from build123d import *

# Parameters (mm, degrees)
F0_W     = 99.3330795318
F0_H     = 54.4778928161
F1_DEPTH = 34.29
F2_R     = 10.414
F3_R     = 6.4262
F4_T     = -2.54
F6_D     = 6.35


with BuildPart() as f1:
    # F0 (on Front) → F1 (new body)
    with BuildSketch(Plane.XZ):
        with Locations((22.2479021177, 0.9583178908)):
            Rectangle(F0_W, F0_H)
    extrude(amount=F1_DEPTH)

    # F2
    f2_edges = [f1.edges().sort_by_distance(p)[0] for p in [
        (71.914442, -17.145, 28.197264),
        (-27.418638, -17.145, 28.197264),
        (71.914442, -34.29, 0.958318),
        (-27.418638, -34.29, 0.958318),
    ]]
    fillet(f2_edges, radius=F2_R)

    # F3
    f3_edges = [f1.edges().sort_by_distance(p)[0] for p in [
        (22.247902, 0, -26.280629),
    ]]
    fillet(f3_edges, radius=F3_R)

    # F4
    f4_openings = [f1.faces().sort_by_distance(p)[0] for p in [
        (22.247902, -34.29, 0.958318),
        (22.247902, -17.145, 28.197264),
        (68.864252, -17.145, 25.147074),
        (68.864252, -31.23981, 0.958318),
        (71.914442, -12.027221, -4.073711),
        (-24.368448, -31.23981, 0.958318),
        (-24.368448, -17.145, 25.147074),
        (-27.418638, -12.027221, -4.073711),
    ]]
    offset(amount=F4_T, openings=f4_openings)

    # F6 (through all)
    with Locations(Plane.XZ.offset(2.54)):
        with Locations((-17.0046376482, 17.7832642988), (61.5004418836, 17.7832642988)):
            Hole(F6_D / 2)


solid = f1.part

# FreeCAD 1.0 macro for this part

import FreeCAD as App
import Part
import Sketcher

V = App.Vector
Q = App.Units.Quantity


def edges_at(feature, points):
    """Names of the edges that pass closest to the given points."""
    edges = feature.Shape.Edges
    near = lambda p: min(range(len(edges)), key=lambda i: edges[i].distToShape(Part.Vertex(*p))[0])
    return sorted({f"Edge{near(p) + 1}" for p in points})


def faces_at(feature, points):
    """Names of the faces that lie closest to the given points."""
    faces = feature.Shape.Faces
    near = lambda p: min(range(len(faces)), key=lambda i: faces[i].distToShape(Part.Vertex(*p))[0])
    return sorted({f"Face{near(p) + 1}" for p in points})


def add_polygon(sketch, points):
    """Adds a closed chain of lines whose ends are joined by coincident constraints."""
    first, n = sketch.GeometryCount, len(points)
    for a, b in zip(points, points[1:] + points[:1]):
        sketch.addGeometry(Part.LineSegment(App.Vector(*a, 0), App.Vector(*b, 0)), False)
    for i in range(n):
        sketch.addConstraint(Sketcher.Constraint("Coincident", first + i, 2, first + (i + 1) % n, 1))

doc = App.newDocument("Part")
body = doc.addObject("PartDesign::Body", "Body")

sketch1 = body.newObject("Sketcher::SketchObject", "Sketch")
sketch1.AttachmentSupport = (doc.getObject("XZ_Plane"), [""])
sketch1.MapMode = "FlatFace"
add_polygon(sketch1, [(-27, 28), (-27, -26), (72, -26), (72, 28)])
sketch1.addConstraint([
    Sketcher.Constraint("Vertical", 0),
    Sketcher.Constraint("Horizontal", 1),
    Sketcher.Constraint("Vertical", 2),
    Sketcher.Constraint("Horizontal", 3),
    Sketcher.Constraint("DistanceX", 1, 1, 1, 2, Q("99.33308 mm")),
    Sketcher.Constraint("DistanceY", 0, 2, 0, 1, Q("54.477893 mm")),
    Sketcher.Constraint("DistanceY", 0, 2, -1, 1, Q("26.280629 mm")),
    Sketcher.Constraint("DistanceX", -1, 1, 1, 2, Q("71.914442 mm")),
])
pad1 = body.newObject("PartDesign::Pad", "Pad")
pad1.Profile = sketch1
pad1.Length = Q("1.35 in")
doc.recompute()

fillet = body.newObject("PartDesign::Fillet", "Fillet")
fillet.Base = (pad1, edges_at(pad1, [
    (71.914, -17.145, 28.197),
    (-27.419, -17.145, 28.197),
    (71.914, -34.29, 0.958),
    (-27.419, -34.29, 0.958),
]))
fillet.Radius = Q("0.41 in")
doc.recompute()

fillet2 = body.newObject("PartDesign::Fillet", "Fillet001")
fillet2.Base = (fillet, edges_at(fillet, [(22.248, 0, -26.281)]))
fillet2.Radius = Q("0.253 in")
doc.recompute()

thickness = body.newObject("PartDesign::Thickness", "Thickness")
thickness.Base = (fillet2, faces_at(fillet2, [
    (22.248, -34.29, 0.958),
    (22.248, -17.145, 28.197),
    (68.864, -17.145, 25.147),
    (68.864, -31.24, 0.958),
    (71.914, -11.938, -4.249),
    (-24.368, -31.24, 0.958),
    (-24.368, -17.145, 25.147),
    (-27.419, -11.938, -4.249),
]))
thickness.Value = Q("0.1 in")
thickness.Reversed = True
thickness.Join = "Arc"

sketch2 = body.newObject("Sketcher::SketchObject", "Sketch001")
sketch2.AttachmentSupport = (doc.getObject("XZ_Plane"), [""])
sketch2.MapMode = "FlatFace"
sketch2.AttachmentOffset = App.Placement(V(0, 0, 0.1 * 25.4), App.Rotation())
sketch2.addGeometry([
    Part.Circle(V(-17, 17.8, 0), V(0, 0, 1), 3.2),
    Part.Circle(V(61.5, 17.8, 0), V(0, 0, 1), 3.2),
], False)
sketch2.addConstraint([
    Sketcher.Constraint("Equal", 0, 1),
    Sketcher.Constraint("Horizontal", 0, 3, 1, 3),
    Sketcher.Constraint("Diameter", 0, Q("0.25 in")),
    Sketcher.Constraint("DistanceX", -1, 1, 1, 3, Q("61.500442 mm")),
    Sketcher.Constraint("DistanceX", 0, 3, 1, 3, Q("78.50508 mm")),
    Sketcher.Constraint("DistanceY", -1, 1, 0, 3, Q("17.783264 mm")),
])
doc.recompute()
hole = body.newObject("PartDesign::Hole", "Hole")
hole.Profile = sketch2
hole.ThreadType = "None"
hole.Diameter = Q("0.25 in")
hole.DepthType = "ThroughAll"

doc.recompute()
